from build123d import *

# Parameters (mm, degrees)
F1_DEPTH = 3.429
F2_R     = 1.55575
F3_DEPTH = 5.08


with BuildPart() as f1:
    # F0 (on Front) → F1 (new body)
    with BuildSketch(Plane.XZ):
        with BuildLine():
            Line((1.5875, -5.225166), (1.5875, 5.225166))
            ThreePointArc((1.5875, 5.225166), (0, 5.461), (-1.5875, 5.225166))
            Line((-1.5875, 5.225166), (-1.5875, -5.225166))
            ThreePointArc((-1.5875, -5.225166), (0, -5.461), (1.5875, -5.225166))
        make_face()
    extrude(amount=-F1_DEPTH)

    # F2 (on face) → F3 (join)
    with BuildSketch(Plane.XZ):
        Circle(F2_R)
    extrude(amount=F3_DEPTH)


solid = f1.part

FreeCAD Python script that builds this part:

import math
import FreeCAD as App
import Part
import Sketcher
Q = App.Units.Quantity

doc = App.newDocument("Part")
body = doc.addObject("PartDesign::Body", "Body")

sketch1 = body.newObject("Sketcher::SketchObject", "Sketch")
sketch1.AttachmentSupport = (doc.getObject("XZ_Plane"), [""])
sketch1.MapMode = "FlatFace"
sketch1.addGeometry(Part.LineSegment(App.Vector(1.5875, -5.225166, 0), App.Vector(1.5875, 5.225166, 0)), False)
sketch1.addGeometry(Part.ArcOfCircle(Part.Circle(App.Vector(0, 0.000011, 0), App.Vector(0, 0, 1), 5.460989), math.radians(73.100237), math.radians(106.899763)), False)
sketch1.addGeometry(Part.LineSegment(App.Vector(-1.5875, 5.225166, 0), App.Vector(-1.5875, -5.225166, 0)), False)
sketch1.addGeometry(Part.ArcOfCircle(Part.Circle(App.Vector(0, -0.000011, 0), App.Vector(0, 0, 1), 5.460989), math.radians(-106.899763), math.radians(-73.100237)), False)
sketch1.addConstraint(Sketcher.Constraint("Coincident", 0, 2, 1, 1))
sketch1.addConstraint(Sketcher.Constraint("Coincident", 1, 2, 2, 1))
sketch1.addConstraint(Sketcher.Constraint("Coincident", 2, 2, 3, 1))
sketch1.addConstraint(Sketcher.Constraint("Coincident", 3, 2, 0, 1))
sketch1.addConstraint(Sketcher.Constraint("Vertical", 0))
sketch1.addConstraint(Sketcher.Constraint("Vertical", 2))
sketch1.addConstraint(Sketcher.Constraint("Equal", 1, 3))
sketch1.addConstraint(Sketcher.Constraint("Symmetric", 1, 3, 3, 3, -1, 1))
sketch1.addConstraint(Sketcher.Constraint("Symmetric", 0, 2, 1, 2, -2))
sketch1.addConstraint(Sketcher.Constraint("DistanceX", -1, 1, 0, 2, Q("0.0625 in")))
sketch1.addConstraint(Sketcher.Constraint("Radius", 1, 5.460989))
sketch1.addConstraint(Sketcher.Constraint("DistanceY", 0, 1, 0, 2, 10.450332))
pad1 = body.newObject("PartDesign::Pad", "Pad")
pad1.Profile = sketch1
pad1.Length = Q("0.135 in")
pad1.Reversed = True

sketch2 = body.newObject("Sketcher::SketchObject", "Sketch001")
sketch2.AttachmentSupport = (doc.getObject("XZ_Plane"), [""])
sketch2.MapMode = "FlatFace"
sketch2.addGeometry(Part.Circle(App.Vector(0, 0, 0), App.Vector(0, 0, 1), 1.6), False)
sketch2.addConstraint(Sketcher.Constraint("Coincident", 0, 3, -1, 1))
sketch2.addConstraint(Sketcher.Constraint("Diameter", 0, Q("0.1225 in")))
pad2 = body.newObject("PartDesign::Pad", "Pad001")
pad2.Profile = sketch2
pad2.Length = Q("0.2 in")

doc.recompute()
